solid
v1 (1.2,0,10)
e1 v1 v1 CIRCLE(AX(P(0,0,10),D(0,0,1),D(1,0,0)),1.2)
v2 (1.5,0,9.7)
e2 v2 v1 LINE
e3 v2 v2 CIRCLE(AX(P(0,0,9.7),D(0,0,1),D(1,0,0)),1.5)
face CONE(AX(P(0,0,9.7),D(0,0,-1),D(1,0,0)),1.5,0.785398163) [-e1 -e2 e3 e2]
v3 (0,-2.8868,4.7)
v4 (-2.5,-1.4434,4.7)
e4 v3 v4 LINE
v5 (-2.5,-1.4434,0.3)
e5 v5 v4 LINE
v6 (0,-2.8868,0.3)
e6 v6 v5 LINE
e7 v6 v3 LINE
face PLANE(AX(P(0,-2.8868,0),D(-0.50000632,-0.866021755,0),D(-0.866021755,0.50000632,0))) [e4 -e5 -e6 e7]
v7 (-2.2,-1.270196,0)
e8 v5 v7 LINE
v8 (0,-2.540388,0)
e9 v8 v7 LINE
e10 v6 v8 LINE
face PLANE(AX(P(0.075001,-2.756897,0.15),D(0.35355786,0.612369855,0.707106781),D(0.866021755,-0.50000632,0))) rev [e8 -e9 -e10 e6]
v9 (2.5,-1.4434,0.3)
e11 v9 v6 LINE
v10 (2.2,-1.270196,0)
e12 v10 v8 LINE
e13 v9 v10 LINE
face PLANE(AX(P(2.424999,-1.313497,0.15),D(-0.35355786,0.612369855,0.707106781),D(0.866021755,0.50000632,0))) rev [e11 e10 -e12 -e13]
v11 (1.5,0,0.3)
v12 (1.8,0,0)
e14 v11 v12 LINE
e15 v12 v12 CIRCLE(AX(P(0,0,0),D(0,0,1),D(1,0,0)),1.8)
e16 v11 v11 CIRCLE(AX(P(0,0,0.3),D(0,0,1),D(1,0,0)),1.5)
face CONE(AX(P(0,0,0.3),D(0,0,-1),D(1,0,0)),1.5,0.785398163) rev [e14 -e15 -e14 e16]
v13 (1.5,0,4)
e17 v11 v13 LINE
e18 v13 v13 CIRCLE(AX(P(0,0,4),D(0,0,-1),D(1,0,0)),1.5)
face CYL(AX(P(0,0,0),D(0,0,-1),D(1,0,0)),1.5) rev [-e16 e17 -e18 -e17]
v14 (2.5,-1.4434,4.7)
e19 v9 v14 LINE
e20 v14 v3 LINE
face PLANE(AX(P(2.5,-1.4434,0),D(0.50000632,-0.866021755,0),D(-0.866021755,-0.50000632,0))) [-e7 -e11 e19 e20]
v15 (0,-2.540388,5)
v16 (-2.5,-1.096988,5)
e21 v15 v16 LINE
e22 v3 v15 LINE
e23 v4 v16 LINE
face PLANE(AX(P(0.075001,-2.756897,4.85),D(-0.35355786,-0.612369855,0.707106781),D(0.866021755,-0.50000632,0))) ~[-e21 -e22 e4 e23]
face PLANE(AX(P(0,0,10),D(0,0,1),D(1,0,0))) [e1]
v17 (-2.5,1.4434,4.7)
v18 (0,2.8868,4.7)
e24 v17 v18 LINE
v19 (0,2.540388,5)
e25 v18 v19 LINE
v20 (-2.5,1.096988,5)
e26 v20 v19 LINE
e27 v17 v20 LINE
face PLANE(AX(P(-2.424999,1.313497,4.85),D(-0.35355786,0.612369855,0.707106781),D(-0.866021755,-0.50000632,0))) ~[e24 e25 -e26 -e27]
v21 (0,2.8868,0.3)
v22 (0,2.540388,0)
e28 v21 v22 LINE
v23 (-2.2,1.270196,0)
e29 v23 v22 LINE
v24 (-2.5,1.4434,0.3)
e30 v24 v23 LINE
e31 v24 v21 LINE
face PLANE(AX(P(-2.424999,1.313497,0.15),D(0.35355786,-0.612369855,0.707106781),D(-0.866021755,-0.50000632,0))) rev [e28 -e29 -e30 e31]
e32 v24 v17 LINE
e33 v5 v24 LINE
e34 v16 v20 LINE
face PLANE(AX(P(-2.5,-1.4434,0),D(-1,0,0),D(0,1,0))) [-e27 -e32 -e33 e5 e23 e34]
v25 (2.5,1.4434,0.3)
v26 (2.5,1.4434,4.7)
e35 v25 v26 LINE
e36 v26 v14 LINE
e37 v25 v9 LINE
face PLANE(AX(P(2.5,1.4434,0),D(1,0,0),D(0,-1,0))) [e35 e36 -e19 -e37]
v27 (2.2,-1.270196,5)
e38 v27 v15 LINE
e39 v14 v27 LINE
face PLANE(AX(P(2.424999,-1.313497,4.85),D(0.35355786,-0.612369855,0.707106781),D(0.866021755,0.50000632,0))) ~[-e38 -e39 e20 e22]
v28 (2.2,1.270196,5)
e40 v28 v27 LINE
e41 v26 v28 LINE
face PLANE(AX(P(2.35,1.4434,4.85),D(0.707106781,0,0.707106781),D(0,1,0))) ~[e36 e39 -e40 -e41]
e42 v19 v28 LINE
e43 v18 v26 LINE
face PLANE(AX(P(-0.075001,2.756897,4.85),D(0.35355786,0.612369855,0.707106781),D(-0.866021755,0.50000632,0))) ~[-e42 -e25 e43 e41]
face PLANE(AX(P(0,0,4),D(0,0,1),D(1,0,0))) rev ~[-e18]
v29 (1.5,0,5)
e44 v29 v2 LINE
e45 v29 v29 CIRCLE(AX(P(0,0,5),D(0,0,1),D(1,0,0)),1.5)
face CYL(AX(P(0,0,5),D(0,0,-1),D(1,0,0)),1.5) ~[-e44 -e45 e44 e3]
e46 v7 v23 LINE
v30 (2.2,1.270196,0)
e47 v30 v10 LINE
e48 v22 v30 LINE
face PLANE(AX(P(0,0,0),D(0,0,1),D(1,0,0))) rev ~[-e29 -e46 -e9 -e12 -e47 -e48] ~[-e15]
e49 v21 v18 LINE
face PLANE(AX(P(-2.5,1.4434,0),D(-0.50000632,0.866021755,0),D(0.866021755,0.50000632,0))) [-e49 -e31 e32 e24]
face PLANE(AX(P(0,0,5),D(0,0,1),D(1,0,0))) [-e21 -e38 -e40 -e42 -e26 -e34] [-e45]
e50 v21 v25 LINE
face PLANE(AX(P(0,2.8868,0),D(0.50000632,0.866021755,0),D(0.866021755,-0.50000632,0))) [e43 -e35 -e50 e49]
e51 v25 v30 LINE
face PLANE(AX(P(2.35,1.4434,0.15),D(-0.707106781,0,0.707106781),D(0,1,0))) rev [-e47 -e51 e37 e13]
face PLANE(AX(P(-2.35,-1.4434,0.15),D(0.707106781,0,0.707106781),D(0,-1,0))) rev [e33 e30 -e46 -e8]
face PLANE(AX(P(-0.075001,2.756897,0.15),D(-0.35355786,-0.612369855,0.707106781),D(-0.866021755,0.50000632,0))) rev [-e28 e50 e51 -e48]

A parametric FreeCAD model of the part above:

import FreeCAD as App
import Part
import Sketcher
Q = App.Units.Quantity


def edges_at(feature, points):
    """Names of the edges that pass closest to the given points."""
    edges = feature.Shape.Edges
    near = lambda p: min(range(len(edges)), key=lambda i: edges[i].distToShape(Part.Vertex(*p))[0])
    return sorted({f"Edge{near(p) + 1}" for p in points})

doc = App.newDocument("Part")
body = doc.addObject("PartDesign::Body", "Body")

# Sketch on XY plane
sketch1 = body.newObject("Sketcher::SketchObject", "Sketch")
sketch1.AttachmentSupport = (doc.getObject("XY_Plane"), [""])
sketch1.MapMode = "FlatFace"
sketch1.addGeometry(Part.LineSegment(App.Vector(2.5, 1.4, 0), App.Vector(0, 2.9, 0)), False)
sketch1.addGeometry(Part.LineSegment(App.Vector(0, 2.9, 0), App.Vector(-2.5, 1.4, 0)), False)
sketch1.addGeometry(Part.LineSegment(App.Vector(-2.5, 1.4, 0), App.Vector(-2.5, -1.4, 0)), False)
sketch1.addGeometry(Part.LineSegment(App.Vector(-2.5, -1.4, 0), App.Vector(0, -2.9, 0)), False)
sketch1.addGeometry(Part.LineSegment(App.Vector(0, -2.9, 0), App.Vector(2.5, -1.4, 0)), False)
sketch1.addGeometry(Part.LineSegment(App.Vector(2.5, -1.4, 0), App.Vector(2.5, 1.4, 0)), False)
sketch1.addGeometry(Part.Circle(App.Vector(0, 0, 0), App.Vector(0, 0, 1), 1.5), False)
sketch1.addConstraint(Sketcher.Constraint("Coincident", 0, 2, 1, 1))
sketch1.addConstraint(Sketcher.Constraint("Coincident", 1, 2, 2, 1))
sketch1.addConstraint(Sketcher.Constraint("Coincident", 2, 2, 3, 1))
sketch1.addConstraint(Sketcher.Constraint("Coincident", 3, 2, 4, 1))
sketch1.addConstraint(Sketcher.Constraint("Coincident", 4, 2, 5, 1))
sketch1.addConstraint(Sketcher.Constraint("Coincident", 5, 2, 0, 1))
sketch1.addConstraint(Sketcher.Constraint("Vertical", 2))
sketch1.addConstraint(Sketcher.Constraint("Vertical", 5))
sketch1.addConstraint(Sketcher.Constraint("Coincident", 6, 3, -1, 1))
sketch1.addConstraint(Sketcher.Constraint("Symmetric", 0, 2, 3, 2, -1, 1))
sketch1.addConstraint(Sketcher.Constraint("Symmetric", 1, 2, 4, 2, -1, 1))
sketch1.addConstraint(Sketcher.Constraint("PointOnObject", 0, 2, -2))
sketch1.addConstraint(Sketcher.Constraint("Parallel", 0, 3))
sketch1.addConstraint(Sketcher.Constraint("Horizontal", 2, 2, 4, 2))
sketch1.addConstraint(Sketcher.Constraint("Diameter", 6, Q("3 mm")))
sketch1.addConstraint(Sketcher.Constraint("DistanceX", 2, 2, 4, 2, Q("5 mm")))
sketch1.addConstraint(Sketcher.Constraint("Angle", 0, Q("149.9996 deg")))
sketch1.addConstraint(Sketcher.Constraint("DistanceY", 2, 2, 2, 1, Q("2.8868 mm")))
pad1 = body.newObject("PartDesign::Pad", "Pad")
pad1.Profile = sketch1
pad1.Length = 5
doc.recompute()

chamfer = body.newObject("PartDesign::Chamfer", "Chamfer")
chamfer.Base = (pad1, edges_at(pad1, [
    (1.25, -2.165, 5),
    (-1.25, -2.165, 5),
    (2.5, 0, 5),
    (1.25, 2.165, 5),
    (-1.25, 2.165, 5),
    (1.25, -2.165, 0),
    (2.5, 0, 0),
    (-1.25, -2.165, 0),
    (1.25, 2.165, 0),
    (-1.25, 2.165, 0),
    (-2.5, 0, 0),
    (-1.5, 0, 5),
    (-1.5, 0, 0),
]))
chamfer.Size = 0.3

# Sketch on XY plane
sketch2 = body.newObject("Sketcher::SketchObject", "Sketch001")
sketch2.AttachmentSupport = (doc.getObject("XY_Plane"), [""])
sketch2.MapMode = "FlatFace"
sketch2.AttachmentOffset = App.Placement(App.Vector(0, 0, 5), App.Rotation())
sketch2.addGeometry(Part.Circle(App.Vector(0, 0, 0), App.Vector(0, 0, 1), 1.8), False)
sketch2.addConstraint(Sketcher.Constraint("Coincident", 0, 3, -1, 1))
sketch2.addConstraint(Sketcher.Constraint("Diameter", 0, Q("3.6 mm")))
pad2 = body.newObject("PartDesign::Pad", "Pad001")
pad2.Profile = sketch2
pad2.Length = 1
pad2.Reversed = True

# Sketch on XY plane
sketch3 = body.newObject("Sketcher::SketchObject", "Sketch002")
sketch3.AttachmentSupport = (doc.getObject("XY_Plane"), [""])
sketch3.MapMode = "FlatFace"
sketch3.AttachmentOffset = App.Placement(App.Vector(0, 0, 5), App.Rotation())
sketch3.addGeometry(Part.Circle(App.Vector(0, 0, 0), App.Vector(0, 0, 1), 1.5), False)
sketch3.addConstraint(Sketcher.Constraint("Coincident", 0, 3, -1, 1))
sketch3.addConstraint(Sketcher.Constraint("Diameter", 0, Q("3 mm")))
pad3 = body.newObject("PartDesign::Pad", "Pad002")
pad3.Profile = sketch3
pad3.Length = 5
doc.recompute()

chamfer2 = body.newObject("PartDesign::Chamfer", "Chamfer001")
chamfer2.Base = (pad3, edges_at(pad3, [(-1.5, 0, 10)]))
chamfer2.Size = 0.3

doc.recompute()
